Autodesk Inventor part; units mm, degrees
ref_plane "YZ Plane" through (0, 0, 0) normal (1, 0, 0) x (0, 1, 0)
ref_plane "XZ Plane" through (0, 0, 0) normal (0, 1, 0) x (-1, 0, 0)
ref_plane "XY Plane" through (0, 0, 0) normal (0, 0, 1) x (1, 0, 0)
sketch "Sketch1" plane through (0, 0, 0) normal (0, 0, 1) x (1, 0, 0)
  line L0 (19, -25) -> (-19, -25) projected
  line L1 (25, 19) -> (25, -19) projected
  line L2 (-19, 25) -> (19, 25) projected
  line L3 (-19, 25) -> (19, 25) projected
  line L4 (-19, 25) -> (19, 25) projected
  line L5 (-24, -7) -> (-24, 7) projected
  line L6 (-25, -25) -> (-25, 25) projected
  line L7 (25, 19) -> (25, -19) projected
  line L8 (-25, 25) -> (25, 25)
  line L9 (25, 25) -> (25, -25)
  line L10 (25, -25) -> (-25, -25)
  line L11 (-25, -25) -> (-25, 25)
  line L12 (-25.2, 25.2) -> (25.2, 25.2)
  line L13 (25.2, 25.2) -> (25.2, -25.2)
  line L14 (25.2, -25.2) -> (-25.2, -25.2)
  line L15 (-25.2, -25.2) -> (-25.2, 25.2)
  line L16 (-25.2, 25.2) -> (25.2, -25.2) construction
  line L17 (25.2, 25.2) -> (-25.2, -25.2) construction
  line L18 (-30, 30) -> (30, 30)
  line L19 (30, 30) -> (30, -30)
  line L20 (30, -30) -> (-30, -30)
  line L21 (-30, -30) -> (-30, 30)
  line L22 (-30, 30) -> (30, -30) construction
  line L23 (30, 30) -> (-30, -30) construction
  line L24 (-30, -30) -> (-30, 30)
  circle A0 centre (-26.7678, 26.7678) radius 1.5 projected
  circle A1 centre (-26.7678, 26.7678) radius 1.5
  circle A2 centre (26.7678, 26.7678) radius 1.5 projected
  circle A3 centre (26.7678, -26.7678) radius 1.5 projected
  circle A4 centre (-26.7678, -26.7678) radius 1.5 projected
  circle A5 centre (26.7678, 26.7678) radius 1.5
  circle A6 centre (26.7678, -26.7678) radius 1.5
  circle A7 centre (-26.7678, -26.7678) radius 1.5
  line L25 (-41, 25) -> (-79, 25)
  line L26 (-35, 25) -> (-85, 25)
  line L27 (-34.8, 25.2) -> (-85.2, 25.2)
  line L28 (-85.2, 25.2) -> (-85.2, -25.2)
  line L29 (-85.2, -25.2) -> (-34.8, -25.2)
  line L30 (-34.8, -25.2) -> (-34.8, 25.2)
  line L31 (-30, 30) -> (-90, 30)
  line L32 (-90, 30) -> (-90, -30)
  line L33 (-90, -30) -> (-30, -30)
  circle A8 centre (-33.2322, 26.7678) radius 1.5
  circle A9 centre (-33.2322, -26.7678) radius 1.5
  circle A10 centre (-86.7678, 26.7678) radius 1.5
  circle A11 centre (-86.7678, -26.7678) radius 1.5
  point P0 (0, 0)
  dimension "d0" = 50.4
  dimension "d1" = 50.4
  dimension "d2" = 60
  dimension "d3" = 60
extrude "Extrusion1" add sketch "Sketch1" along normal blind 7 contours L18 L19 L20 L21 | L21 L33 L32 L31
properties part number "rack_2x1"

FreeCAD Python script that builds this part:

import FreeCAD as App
import Part
import Sketcher
from FreeCAD import Vector
Q = App.Units.Quantity

doc = App.newDocument("Part")
params = doc.addObject("Spreadsheet::Sheet", "Params")
for row, (alias, value) in enumerate([
    ("sketch1_height", "60 mm"),
    ("sketch1_diameter", "3 mm"),
    ("sketch1_width", "50.4 mm"),
    ("sketch1_width2", "120 mm"),
    ("pad1_length", "7 mm"),
], start=1):
    params.set(f"A{row}", alias)
    params.set(f"B{row}", "=" + value)
    params.setAlias(f"B{row}", alias)

body = doc.addObject("PartDesign::Body", "Body")

sketch1 = body.newObject("Sketcher::SketchObject", "Sketch")
sketch1.AttachmentSupport = (doc.getObject("XY_Plane"), [""])
sketch1.MapMode = "FlatFace"
sketch1.addGeometry([
    Part.LineSegment(Vector(30, 30, 0), Vector(-90, 30, 0)),
    Part.LineSegment(Vector(-90, 30, 0), Vector(-90, -30, 0)),
    Part.LineSegment(Vector(-90, -30, 0), Vector(30, -30, 0)),
    Part.LineSegment(Vector(30, -30, 0), Vector(30, 30, 0)),
    Part.Circle(Vector(-26.8, -26.8, 0), Vector(0, 0, 1), 1.5),
    Part.Circle(Vector(26.8, -26.8, 0), Vector(0, 0, 1), 1.5),
    Part.LineSegment(Vector(-25.2, -25.2, 0), Vector(-25.2, 25.2, 0)),
    Part.LineSegment(Vector(-25.2, 25.2, 0), Vector(25.2, 25.2, 0)),
    Part.LineSegment(Vector(25.2, 25.2, 0), Vector(25.2, -25.2, 0)),
    Part.LineSegment(Vector(25.2, -25.2, 0), Vector(-25.2, -25.2, 0)),
    Part.Circle(Vector(-26.8, 26.8, 0), Vector(0, 0, 1), 1.5),
    Part.Circle(Vector(26.8, 26.8, 0), Vector(0, 0, 1), 1.5),
    Part.Circle(Vector(-33.2, 26.8, 0), Vector(0, 0, 1), 1.5),
    Part.Circle(Vector(-86.8, -26.8, 0), Vector(0, 0, 1), 1.5),
    Part.Circle(Vector(-33.2, -26.8, 0), Vector(0, 0, 1), 1.5),
    Part.LineSegment(Vector(-85.2, 25.2, 0), Vector(-34.8, 25.2, 0)),
    Part.LineSegment(Vector(-34.8, 25.2, 0), Vector(-34.8, -25.2, 0)),
    Part.LineSegment(Vector(-34.8, -25.2, 0), Vector(-85.2, -25.2, 0)),
    Part.LineSegment(Vector(-85.2, -25.2, 0), Vector(-85.2, 25.2, 0)),
    Part.Circle(Vector(-86.8, 26.8, 0), Vector(0, 0, 1), 1.5),
], False)
sketch1.addConstraint([
    Sketcher.Constraint("Coincident", 0, 2, 1, 1),
    Sketcher.Constraint("Coincident", 1, 2, 2, 1),
    Sketcher.Constraint("Coincident", 2, 2, 3, 1),
    Sketcher.Constraint("Coincident", 3, 2, 0, 1),
    Sketcher.Constraint("Coincident", 6, 2, 7, 1),
    Sketcher.Constraint("Coincident", 7, 2, 8, 1),
    Sketcher.Constraint("Coincident", 8, 2, 9, 1),
    Sketcher.Constraint("Coincident", 9, 2, 6, 1),
    Sketcher.Constraint("Coincident", 15, 2, 16, 1),
    Sketcher.Constraint("Coincident", 16, 2, 17, 1),
    Sketcher.Constraint("Coincident", 17, 2, 18, 1),
    Sketcher.Constraint("Coincident", 18, 2, 15, 1),
    Sketcher.Constraint("Horizontal", 0),
    Sketcher.Constraint("Vertical", 1),
    Sketcher.Constraint("Horizontal", 2),
    Sketcher.Constraint("Vertical", 3),
    Sketcher.Constraint("Vertical", 6),
    Sketcher.Constraint("Horizontal", 7),
    Sketcher.Constraint("Vertical", 8),
    Sketcher.Constraint("Horizontal", 9),
    Sketcher.Constraint("Horizontal", 15),
    Sketcher.Constraint("Vertical", 16),
    Sketcher.Constraint("Horizontal", 17),
    Sketcher.Constraint("Vertical", 18),
    Sketcher.Constraint("Equal", 4, 5),
    Sketcher.Constraint("Equal", 5, 10),
    Sketcher.Constraint("Equal", 10, 11),
    Sketcher.Constraint("Equal", 11, 12),
    Sketcher.Constraint("Equal", 12, 13),
    Sketcher.Constraint("Equal", 13, 14),
    Sketcher.Constraint("Equal", 14, 19),
    Sketcher.Constraint("Symmetric", 5, 3, 10, 3, -1, 1),
    Sketcher.Constraint("Symmetric", 4, 3, 11, 3, -1, 1),
    Sketcher.Constraint("Symmetric", 6, 2, 8, 2, -1, 1),
    Sketcher.Constraint("Symmetric", 4, 3, 5, 3, -2),
    Sketcher.Constraint("Symmetric", 12, 3, 14, 3, -1),
    Sketcher.Constraint("Symmetric", 13, 3, 19, 3, -1),
    Sketcher.Constraint("Horizontal", 11, 3, 12, 3),
    Sketcher.Constraint("Horizontal", 5, 3, 13, 3),
    Sketcher.Constraint("Horizontal", 7, 2, 15, 2),
    Sketcher.Constraint("Horizontal", 9, 2, 16, 2),
    Sketcher.Constraint("Equal", 9, 15),
    Sketcher.Constraint("Equal", 17, 6),
    Sketcher.Constraint("DistanceY", 1, 2, 1, 1, Q("60 mm")),
    Sketcher.Constraint("Diameter", 4, Q("3 mm")),
    Sketcher.Constraint("DistanceX", 7, 1, 7, 2, Q("50.4 mm")),
    Sketcher.Constraint("DistanceX", 12, 3, 11, 3, Q("60 mm")),
    Sketcher.Constraint("DistanceX", 13, 3, 4, 3, Q("60 mm")),
    Sketcher.Constraint("DistanceX", 0, 2, 0, 1, Q("120 mm")),
    Sketcher.Constraint("DistanceX", 0, 2, -1, 1, Q("90 mm")),
    Sketcher.Constraint("DistanceY", -1, 1, 0, 2, Q("30 mm")),
    Sketcher.Constraint("DistanceX", 15, 2, -1, 1, Q("34.8 mm")),
    Sketcher.Constraint("DistanceX", 4, 3, -1, 1, Q("26.7678 mm")),
    Sketcher.Constraint("DistanceY", 4, 3, -1, 1, Q("26.7678 mm")),
])
sketch1.setExpression("Constraints[43]", "Params.sketch1_height")
sketch1.setExpression("Constraints[44]", "Params.sketch1_diameter")
sketch1.setExpression("Constraints[45]", "Params.sketch1_width")
sketch1.setExpression("Constraints[48]", "Params.sketch1_width2")
pad1 = body.newObject("PartDesign::Pad", "Pad")
pad1.Profile = sketch1
pad1.setExpression("Length", "Params.pad1_length")

doc.recompute()
